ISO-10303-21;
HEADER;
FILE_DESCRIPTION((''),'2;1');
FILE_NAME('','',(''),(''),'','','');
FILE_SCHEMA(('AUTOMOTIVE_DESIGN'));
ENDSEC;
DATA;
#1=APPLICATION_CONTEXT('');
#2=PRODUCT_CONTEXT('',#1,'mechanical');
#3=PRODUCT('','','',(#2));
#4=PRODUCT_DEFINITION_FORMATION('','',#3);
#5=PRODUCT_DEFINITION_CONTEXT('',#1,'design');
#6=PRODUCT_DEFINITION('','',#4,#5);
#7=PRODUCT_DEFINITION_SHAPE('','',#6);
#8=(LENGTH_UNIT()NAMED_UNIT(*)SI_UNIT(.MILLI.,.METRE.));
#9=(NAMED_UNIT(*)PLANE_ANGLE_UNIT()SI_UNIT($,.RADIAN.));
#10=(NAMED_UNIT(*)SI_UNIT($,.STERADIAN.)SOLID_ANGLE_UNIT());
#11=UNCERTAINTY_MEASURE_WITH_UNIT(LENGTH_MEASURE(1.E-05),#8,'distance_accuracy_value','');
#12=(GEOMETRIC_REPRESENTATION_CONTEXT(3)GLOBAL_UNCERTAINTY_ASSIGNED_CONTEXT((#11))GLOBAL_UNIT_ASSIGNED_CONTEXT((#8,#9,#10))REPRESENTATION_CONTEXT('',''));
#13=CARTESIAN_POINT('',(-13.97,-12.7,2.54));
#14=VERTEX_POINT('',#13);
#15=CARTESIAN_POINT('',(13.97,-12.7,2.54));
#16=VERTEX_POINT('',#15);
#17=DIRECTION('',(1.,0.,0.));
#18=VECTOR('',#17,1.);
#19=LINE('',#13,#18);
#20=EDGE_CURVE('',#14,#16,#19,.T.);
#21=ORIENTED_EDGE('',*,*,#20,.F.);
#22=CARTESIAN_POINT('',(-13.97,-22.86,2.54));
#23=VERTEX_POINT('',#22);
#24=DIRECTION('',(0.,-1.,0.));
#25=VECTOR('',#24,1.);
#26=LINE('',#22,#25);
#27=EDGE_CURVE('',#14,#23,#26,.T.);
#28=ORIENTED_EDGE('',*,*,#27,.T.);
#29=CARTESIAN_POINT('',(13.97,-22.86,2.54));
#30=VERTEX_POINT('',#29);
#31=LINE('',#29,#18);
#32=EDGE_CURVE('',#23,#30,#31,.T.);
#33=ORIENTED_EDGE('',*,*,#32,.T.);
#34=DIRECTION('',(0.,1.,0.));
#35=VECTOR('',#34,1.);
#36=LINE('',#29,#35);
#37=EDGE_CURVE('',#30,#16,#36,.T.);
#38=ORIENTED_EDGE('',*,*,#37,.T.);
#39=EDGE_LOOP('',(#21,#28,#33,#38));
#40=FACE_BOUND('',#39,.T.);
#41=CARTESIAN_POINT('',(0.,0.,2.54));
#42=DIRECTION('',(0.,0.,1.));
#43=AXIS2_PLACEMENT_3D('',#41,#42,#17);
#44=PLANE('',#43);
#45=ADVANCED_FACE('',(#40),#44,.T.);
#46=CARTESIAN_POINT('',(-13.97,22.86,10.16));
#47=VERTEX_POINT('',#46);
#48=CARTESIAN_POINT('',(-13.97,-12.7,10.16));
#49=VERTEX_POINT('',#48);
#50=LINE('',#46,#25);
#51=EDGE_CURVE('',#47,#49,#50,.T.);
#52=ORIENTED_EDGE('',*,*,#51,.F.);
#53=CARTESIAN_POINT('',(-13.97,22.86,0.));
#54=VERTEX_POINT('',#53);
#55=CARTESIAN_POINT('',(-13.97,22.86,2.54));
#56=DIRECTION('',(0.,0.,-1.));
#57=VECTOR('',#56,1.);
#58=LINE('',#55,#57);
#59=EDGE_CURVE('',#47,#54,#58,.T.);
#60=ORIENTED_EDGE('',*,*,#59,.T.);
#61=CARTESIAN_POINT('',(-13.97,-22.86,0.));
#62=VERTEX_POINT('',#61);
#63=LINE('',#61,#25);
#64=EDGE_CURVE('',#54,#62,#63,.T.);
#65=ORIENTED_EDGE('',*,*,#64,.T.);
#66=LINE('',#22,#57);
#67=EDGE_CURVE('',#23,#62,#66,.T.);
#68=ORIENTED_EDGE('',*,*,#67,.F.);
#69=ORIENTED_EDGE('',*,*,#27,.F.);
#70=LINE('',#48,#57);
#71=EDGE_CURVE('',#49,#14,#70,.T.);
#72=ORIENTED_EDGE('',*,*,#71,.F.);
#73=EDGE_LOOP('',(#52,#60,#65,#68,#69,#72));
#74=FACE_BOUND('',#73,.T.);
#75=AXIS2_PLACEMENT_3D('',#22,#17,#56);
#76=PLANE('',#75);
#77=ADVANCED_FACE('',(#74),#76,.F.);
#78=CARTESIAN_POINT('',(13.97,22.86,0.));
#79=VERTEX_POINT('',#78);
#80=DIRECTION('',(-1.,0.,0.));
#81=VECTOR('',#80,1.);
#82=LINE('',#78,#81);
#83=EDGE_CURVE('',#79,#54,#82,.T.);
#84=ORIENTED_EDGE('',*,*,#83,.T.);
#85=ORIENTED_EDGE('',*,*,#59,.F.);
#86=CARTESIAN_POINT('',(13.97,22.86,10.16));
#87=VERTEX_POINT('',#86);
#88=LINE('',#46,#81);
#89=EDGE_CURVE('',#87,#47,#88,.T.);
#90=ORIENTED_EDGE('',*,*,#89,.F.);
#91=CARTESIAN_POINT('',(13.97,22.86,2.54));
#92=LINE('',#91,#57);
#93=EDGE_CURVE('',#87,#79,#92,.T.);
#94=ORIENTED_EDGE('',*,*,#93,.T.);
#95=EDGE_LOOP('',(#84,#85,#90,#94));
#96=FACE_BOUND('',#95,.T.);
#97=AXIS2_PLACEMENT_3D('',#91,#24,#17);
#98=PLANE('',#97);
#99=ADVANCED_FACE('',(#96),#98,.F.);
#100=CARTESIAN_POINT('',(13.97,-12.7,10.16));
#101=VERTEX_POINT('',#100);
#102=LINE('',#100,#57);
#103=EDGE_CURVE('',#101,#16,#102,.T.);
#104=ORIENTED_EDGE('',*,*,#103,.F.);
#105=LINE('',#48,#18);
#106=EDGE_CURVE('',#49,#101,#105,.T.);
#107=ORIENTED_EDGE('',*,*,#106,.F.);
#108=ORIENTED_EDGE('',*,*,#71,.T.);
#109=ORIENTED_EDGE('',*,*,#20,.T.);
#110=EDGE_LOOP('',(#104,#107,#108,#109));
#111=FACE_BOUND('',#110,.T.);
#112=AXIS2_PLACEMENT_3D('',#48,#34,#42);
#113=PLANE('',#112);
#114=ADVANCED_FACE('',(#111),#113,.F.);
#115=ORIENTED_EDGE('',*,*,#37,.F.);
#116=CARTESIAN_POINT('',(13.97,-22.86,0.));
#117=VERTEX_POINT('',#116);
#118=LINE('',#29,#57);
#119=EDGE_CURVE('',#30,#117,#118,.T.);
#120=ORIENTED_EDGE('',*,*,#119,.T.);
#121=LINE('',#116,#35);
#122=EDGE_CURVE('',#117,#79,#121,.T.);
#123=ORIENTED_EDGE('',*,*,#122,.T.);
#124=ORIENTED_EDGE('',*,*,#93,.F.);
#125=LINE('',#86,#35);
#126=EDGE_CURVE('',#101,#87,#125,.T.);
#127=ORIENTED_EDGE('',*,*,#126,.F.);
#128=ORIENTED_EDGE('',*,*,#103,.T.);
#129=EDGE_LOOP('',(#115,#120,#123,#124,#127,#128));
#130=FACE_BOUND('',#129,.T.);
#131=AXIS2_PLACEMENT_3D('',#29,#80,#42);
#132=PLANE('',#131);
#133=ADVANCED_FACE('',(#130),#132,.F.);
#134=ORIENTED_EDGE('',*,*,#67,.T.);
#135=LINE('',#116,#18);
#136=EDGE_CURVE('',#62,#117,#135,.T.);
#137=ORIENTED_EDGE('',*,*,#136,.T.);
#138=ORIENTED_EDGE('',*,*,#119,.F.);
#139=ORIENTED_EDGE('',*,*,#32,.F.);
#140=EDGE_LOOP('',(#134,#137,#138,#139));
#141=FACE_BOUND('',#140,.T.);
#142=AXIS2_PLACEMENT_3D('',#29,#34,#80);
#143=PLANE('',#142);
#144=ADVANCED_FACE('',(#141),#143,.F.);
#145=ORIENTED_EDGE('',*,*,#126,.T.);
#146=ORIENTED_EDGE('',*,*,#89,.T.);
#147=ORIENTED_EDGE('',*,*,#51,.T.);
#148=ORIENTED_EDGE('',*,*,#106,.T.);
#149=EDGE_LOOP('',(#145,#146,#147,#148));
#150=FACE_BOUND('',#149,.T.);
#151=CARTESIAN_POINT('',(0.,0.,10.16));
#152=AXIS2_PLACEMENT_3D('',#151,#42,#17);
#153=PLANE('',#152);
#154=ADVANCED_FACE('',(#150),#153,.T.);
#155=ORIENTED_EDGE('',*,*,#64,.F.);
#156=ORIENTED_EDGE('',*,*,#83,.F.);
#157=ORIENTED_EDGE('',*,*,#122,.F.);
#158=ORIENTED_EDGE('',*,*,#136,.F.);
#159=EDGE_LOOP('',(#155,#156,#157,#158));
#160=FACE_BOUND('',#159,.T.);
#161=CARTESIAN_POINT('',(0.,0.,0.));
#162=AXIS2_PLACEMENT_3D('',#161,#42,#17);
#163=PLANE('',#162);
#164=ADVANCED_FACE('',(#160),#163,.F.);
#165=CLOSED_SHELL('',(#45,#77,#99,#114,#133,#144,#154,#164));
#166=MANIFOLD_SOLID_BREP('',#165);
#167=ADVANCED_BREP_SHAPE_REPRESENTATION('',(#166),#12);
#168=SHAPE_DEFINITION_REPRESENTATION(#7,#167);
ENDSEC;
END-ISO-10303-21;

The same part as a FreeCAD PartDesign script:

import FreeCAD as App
import Part
import Sketcher

V = App.Vector
Q = App.Units.Quantity

doc = App.newDocument("Part")
body = doc.addObject("PartDesign::Body", "Body")

sketch1 = body.newObject("Sketcher::SketchObject", "Sketch")
sketch1.AttachmentSupport = (doc.getObject("XY_Plane"), [""])
sketch1.MapMode = "FlatFace"
sketch1.addGeometry(Part.LineSegment(V(-14, 23, 0), V(-14, -23, 0)), False)
sketch1.addGeometry(Part.LineSegment(V(-14, -23, 0), V(14, -23, 0)), False)
sketch1.addGeometry(Part.LineSegment(V(14, -23, 0), V(14, 23, 0)), False)
sketch1.addGeometry(Part.LineSegment(V(14, 23, 0), V(-14, 23, 0)), False)
sketch1.addConstraint(Sketcher.Constraint("Coincident", 0, 2, 1, 1))
sketch1.addConstraint(Sketcher.Constraint("Coincident", 1, 2, 2, 1))
sketch1.addConstraint(Sketcher.Constraint("Coincident", 2, 2, 3, 1))
sketch1.addConstraint(Sketcher.Constraint("Coincident", 3, 2, 0, 1))
sketch1.addConstraint(Sketcher.Constraint("Vertical", 0))
sketch1.addConstraint(Sketcher.Constraint("Horizontal", 1))
sketch1.addConstraint(Sketcher.Constraint("Vertical", 2))
sketch1.addConstraint(Sketcher.Constraint("Horizontal", 3))
sketch1.addConstraint(Sketcher.Constraint("Symmetric", 0, 2, 2, 2, -1, 1))
sketch1.addConstraint(Sketcher.Constraint("DistanceX", 1, 1, 1, 2, Q("1.1 in")))
sketch1.addConstraint(Sketcher.Constraint("DistanceY", 0, 2, 0, 1, Q("1.8 in")))
pad1 = body.newObject("PartDesign::Pad", "Pad")
pad1.Profile = sketch1
pad1.Length = Q("0.1 in")

sketch2 = body.newObject("Sketcher::SketchObject", "Sketch001")
sketch2.AttachmentSupport = (doc.getObject("XY_Plane"), [""])
sketch2.MapMode = "FlatFace"
sketch2.AttachmentOffset = App.Placement(V(0, 0, 0.1 * 25.4), App.Rotation())
sketch2.addGeometry(Part.LineSegment(V(-14, 23, 0), V(-14, -13, 0)), False)
sketch2.addGeometry(Part.LineSegment(V(-14, -13, 0), V(14, -13, 0)), False)
sketch2.addGeometry(Part.LineSegment(V(14, -13, 0), V(14, 23, 0)), False)
sketch2.addGeometry(Part.LineSegment(V(14, 23, 0), V(-14, 23, 0)), False)
sketch2.addConstraint(Sketcher.Constraint("Coincident", 0, 2, 1, 1))
sketch2.addConstraint(Sketcher.Constraint("Coincident", 1, 2, 2, 1))
sketch2.addConstraint(Sketcher.Constraint("Coincident", 2, 2, 3, 1))
sketch2.addConstraint(Sketcher.Constraint("Coincident", 3, 2, 0, 1))
sketch2.addConstraint(Sketcher.Constraint("Vertical", 0))
sketch2.addConstraint(Sketcher.Constraint("Horizontal", 1))
sketch2.addConstraint(Sketcher.Constraint("Vertical", 2))
sketch2.addConstraint(Sketcher.Constraint("Horizontal", 3))
sketch2.addConstraint(Sketcher.Constraint("DistanceX", 1, 1, 1, 2, Q("1.1 in")))
sketch2.addConstraint(Sketcher.Constraint("DistanceY", 0, 2, 0, 1, Q("1.4 in")))
sketch2.addConstraint(Sketcher.Constraint("DistanceY", 0, 2, -1, 1, Q("0.5 in")))
sketch2.addConstraint(Sketcher.Constraint("DistanceX", 0, 2, -1, 1, Q("0.55 in")))
pad2 = body.newObject("PartDesign::Pad", "Pad001")
pad2.Profile = sketch2
pad2.Length = Q("0.3 in")

doc.recompute()
